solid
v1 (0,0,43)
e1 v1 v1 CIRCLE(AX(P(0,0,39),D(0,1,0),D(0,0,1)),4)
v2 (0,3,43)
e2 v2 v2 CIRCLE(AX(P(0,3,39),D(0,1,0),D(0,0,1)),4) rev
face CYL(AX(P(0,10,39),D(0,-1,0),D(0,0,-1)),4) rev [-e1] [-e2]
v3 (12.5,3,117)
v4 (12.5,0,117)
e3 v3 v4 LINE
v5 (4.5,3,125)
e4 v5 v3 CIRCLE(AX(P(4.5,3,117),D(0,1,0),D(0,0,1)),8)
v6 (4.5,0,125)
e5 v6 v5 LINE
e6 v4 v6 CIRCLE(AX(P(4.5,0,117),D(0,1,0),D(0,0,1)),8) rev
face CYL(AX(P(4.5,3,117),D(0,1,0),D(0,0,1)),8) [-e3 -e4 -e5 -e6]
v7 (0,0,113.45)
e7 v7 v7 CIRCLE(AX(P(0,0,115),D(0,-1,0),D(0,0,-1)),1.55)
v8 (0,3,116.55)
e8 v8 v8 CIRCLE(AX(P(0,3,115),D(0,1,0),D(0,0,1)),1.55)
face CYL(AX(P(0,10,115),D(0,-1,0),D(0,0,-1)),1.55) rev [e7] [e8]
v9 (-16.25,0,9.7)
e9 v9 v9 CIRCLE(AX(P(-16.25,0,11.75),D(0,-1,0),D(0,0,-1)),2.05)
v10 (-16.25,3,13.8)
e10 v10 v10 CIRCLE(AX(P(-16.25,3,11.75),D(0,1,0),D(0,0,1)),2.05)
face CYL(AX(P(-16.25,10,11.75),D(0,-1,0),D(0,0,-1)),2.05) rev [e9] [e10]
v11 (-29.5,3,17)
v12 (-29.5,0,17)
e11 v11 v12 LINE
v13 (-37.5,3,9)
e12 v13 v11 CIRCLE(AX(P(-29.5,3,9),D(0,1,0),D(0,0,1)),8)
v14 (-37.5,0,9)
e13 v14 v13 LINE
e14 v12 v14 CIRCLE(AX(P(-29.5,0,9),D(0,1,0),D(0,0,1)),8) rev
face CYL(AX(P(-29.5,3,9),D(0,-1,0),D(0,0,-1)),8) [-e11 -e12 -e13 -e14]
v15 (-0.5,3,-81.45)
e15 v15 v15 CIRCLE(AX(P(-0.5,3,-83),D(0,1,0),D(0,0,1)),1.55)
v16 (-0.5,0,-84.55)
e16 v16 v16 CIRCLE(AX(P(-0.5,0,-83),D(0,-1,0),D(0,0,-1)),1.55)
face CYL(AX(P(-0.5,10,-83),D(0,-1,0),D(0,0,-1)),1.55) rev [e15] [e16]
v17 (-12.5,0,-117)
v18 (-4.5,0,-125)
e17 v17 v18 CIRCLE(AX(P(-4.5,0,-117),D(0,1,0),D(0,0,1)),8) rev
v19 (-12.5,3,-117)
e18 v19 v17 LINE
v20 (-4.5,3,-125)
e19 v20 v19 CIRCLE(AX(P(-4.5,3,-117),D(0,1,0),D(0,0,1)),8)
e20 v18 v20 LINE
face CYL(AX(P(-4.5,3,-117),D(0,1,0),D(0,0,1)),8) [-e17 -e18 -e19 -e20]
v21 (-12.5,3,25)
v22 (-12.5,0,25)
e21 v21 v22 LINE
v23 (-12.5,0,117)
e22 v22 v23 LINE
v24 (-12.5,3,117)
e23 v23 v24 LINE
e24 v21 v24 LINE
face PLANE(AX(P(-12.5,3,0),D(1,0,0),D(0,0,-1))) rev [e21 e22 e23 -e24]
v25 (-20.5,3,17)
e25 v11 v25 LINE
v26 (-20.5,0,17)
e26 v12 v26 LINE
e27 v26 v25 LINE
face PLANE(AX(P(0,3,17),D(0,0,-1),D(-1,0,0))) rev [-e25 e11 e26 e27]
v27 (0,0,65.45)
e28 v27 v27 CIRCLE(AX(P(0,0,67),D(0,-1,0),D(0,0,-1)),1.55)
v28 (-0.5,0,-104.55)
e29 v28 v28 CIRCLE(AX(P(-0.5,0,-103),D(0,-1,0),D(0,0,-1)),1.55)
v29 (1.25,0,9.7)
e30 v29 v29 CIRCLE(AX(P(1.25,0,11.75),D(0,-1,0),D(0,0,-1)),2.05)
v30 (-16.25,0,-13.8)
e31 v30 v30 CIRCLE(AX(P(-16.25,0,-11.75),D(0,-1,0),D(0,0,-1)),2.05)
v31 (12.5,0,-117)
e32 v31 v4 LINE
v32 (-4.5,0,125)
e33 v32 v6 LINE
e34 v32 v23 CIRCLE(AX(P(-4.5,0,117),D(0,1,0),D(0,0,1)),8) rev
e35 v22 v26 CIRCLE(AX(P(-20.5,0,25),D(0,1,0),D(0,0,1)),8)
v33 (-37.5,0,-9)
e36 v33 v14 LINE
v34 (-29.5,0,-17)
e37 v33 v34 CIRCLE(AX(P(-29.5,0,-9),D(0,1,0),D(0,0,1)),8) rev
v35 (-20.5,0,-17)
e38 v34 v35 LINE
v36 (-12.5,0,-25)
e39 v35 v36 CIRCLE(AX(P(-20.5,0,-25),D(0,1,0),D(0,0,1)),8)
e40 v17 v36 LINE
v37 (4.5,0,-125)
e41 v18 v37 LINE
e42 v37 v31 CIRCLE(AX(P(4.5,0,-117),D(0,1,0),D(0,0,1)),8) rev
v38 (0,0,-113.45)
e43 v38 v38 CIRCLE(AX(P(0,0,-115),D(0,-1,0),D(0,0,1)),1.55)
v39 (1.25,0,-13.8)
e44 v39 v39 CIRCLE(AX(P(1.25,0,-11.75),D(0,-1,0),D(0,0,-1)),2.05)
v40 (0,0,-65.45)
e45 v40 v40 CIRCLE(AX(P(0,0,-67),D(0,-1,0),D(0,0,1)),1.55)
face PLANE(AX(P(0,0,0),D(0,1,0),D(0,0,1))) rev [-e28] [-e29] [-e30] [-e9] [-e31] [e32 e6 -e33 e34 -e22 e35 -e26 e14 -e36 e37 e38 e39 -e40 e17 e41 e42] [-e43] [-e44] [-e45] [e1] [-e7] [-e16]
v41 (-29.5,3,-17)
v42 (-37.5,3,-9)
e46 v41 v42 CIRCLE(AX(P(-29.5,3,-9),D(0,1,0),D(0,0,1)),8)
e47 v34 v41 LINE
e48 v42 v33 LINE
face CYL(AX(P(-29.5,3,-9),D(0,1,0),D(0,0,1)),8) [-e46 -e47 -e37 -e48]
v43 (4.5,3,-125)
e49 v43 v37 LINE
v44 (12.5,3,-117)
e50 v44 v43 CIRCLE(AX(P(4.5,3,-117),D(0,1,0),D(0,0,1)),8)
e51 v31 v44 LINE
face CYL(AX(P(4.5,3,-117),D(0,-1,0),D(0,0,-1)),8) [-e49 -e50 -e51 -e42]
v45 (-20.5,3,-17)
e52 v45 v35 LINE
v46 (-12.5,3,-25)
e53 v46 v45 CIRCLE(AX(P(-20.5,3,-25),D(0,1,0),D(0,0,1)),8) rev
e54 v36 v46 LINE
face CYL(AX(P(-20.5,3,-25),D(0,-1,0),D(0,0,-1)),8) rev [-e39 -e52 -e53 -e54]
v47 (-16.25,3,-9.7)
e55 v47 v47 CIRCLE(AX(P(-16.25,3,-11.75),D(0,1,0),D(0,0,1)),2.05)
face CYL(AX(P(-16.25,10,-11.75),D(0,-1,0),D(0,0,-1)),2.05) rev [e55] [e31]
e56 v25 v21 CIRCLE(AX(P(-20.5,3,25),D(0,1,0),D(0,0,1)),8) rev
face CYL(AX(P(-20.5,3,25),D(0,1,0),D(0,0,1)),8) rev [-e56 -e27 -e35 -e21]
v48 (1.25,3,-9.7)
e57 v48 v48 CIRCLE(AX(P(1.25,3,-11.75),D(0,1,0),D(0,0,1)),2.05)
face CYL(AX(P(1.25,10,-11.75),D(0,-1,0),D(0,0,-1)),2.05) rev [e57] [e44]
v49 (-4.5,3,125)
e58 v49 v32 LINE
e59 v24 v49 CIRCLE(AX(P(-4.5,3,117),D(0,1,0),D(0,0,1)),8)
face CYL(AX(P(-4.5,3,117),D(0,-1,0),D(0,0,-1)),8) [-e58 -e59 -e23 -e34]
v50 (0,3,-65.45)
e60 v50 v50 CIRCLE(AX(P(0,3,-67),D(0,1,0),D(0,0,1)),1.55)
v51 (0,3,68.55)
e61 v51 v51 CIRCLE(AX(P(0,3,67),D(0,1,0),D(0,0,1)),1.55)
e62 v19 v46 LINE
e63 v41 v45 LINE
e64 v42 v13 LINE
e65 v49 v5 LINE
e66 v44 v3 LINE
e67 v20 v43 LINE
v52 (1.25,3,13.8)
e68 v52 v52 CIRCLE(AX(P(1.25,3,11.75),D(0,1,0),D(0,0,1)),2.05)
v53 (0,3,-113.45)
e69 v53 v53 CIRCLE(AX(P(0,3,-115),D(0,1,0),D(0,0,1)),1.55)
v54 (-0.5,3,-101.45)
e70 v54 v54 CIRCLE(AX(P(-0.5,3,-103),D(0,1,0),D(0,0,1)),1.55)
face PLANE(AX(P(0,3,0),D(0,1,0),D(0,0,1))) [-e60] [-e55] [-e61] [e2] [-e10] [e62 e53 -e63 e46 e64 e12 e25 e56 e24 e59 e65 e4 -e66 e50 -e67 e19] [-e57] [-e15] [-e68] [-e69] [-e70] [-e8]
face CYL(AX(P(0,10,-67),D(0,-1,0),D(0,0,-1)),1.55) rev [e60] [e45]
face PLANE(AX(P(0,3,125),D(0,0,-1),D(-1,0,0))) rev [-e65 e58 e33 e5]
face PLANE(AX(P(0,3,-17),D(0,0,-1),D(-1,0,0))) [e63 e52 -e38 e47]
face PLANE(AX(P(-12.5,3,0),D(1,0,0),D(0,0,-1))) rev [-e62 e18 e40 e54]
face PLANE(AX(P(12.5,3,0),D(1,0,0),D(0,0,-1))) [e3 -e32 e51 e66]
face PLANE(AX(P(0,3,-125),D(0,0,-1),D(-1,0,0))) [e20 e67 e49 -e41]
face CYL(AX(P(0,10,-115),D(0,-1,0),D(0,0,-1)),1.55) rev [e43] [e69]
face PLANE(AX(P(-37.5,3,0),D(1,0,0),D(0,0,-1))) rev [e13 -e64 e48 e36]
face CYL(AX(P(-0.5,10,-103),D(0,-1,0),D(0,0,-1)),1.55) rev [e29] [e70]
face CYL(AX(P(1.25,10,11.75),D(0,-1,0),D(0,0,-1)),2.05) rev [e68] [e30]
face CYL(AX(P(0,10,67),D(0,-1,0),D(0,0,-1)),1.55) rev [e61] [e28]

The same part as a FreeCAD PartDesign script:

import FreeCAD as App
import Part
import Sketcher
from FreeCAD import Vector
Q = App.Units.Quantity


def edges_at(feature, points):
    """Names of the edges that pass closest to the given points."""
    edges = feature.Shape.Edges
    near = lambda p: min(range(len(edges)), key=lambda i: edges[i].distToShape(Part.Vertex(*p))[0])
    return sorted({f"Edge{near(p) + 1}" for p in points})


def add_polygon(sketch, points):
    """Adds a closed chain of lines whose ends are joined by coincident constraints."""
    first, n = sketch.GeometryCount, len(points)
    for a, b in zip(points, points[1:] + points[:1]):
        sketch.addGeometry(Part.LineSegment(App.Vector(*a, 0), App.Vector(*b, 0)), False)
    for i in range(n):
        sketch.addConstraint(Sketcher.Constraint("Coincident", first + i, 2, first + (i + 1) % n, 1))

doc = App.newDocument("Part")
body = doc.addObject("PartDesign::Body", "Body")

sketch1 = doc.addObject("Sketcher::SketchObject", "Sketch")
body.addObject(sketch1)
sketch1.AttachmentSupport = (doc.XZ_Plane, [""])
sketch1.MapMode = "FlatFace"
add_polygon(sketch1, [(-37.5, -17), (-37.5, 17), (-12.5, 17), (-12.5, 125), (12.5, 125), (12.5, -125), (-12.5, -125), (-12.5, -17)])
sketch1.addConstraint([
    Sketcher.Constraint("Vertical", 0),
    Sketcher.Constraint("Horizontal", 1),
    Sketcher.Constraint("Vertical", 2),
    Sketcher.Constraint("Horizontal", 3),
    Sketcher.Constraint("Vertical", 4),
    Sketcher.Constraint("Horizontal", 5),
    Sketcher.Constraint("Vertical", 6),
    Sketcher.Constraint("Horizontal", 7),
    Sketcher.Constraint("Symmetric", 2, 2, 4, 2, -1, 1),
    Sketcher.Constraint("Symmetric", 1, 2, 6, 2, -1),
    Sketcher.Constraint("Equal", 1, 3),
    Sketcher.Constraint("DistanceX", 1, 1, 1, 2, Q("25 mm")),
    Sketcher.Constraint("DistanceY", 0, 1, 0, 2, Q("34 mm")),
    Sketcher.Constraint("DistanceY", 2, 1, 2, 2, Q("108 mm")),
])
pad1 = doc.addObject("PartDesign::Pad", "Pad")
body.addObject(pad1)
pad1.Profile = sketch1
pad1.Length = 3
pad1.Reversed = True

sketch2 = doc.addObject("Sketcher::SketchObject", "Sketch001")
body.addObject(sketch2)
sketch2.AttachmentSupport = (doc.XZ_Plane, [""])
sketch2.MapMode = "FlatFace"
sketch2.addGeometry([
    Part.Circle(Vector(1.25, 11.75, 0), Vector(0, 0, 1), 2.05),
    Part.Circle(Vector(1.25, -11.75, 0), Vector(0, 0, 1), 2.05),
    Part.Circle(Vector(-16.25, -11.75, 0), Vector(0, 0, 1), 2.05),
    Part.Circle(Vector(-16.25, 11.75, 0), Vector(0, 0, 1), 2.05),
    Part.Circle(Vector(0, 115, 0), Vector(0, 0, 1), 1.55),
    Part.Circle(Vector(0, 67, 0), Vector(0, 0, 1), 1.55),
    Part.Circle(Vector(0, -115, 0), Vector(0, 0, 1), 1.55),
    Part.Circle(Vector(0, -67, 0), Vector(0, 0, 1), 1.55),
], False)
sketch2.addConstraint([
    Sketcher.Constraint("Equal", 0, 1),
    Sketcher.Constraint("Equal", 1, 2),
    Sketcher.Constraint("Equal", 2, 3),
    Sketcher.Constraint("Equal", 4, 5),
    Sketcher.Constraint("Equal", 5, 6),
    Sketcher.Constraint("Equal", 6, 7),
    Sketcher.Constraint("Symmetric", 4, 3, 6, 3, -1, 1),
    Sketcher.Constraint("Symmetric", 5, 3, 7, 3, -1, 1),
    Sketcher.Constraint("Symmetric", 0, 3, 1, 3, -1),
    Sketcher.Constraint("Symmetric", 2, 3, 3, 3, -1),
    Sketcher.Constraint("PointOnObject", 4, 3, -2),
    Sketcher.Constraint("PointOnObject", 5, 3, -2),
    Sketcher.Constraint("Horizontal", 1, 3, 2, 3),
    Sketcher.Constraint("Diameter", 0, Q("4.1 mm")),
    Sketcher.Constraint("Diameter", 4, Q("3.1 mm")),
    Sketcher.Constraint("DistanceY", -1, 1, 4, 3, Q("115 mm")),
    Sketcher.Constraint("DistanceY", -1, 1, 5, 3, Q("67 mm")),
    Sketcher.Constraint("DistanceY", 1, 3, 0, 3, Q("23.5 mm")),
    Sketcher.Constraint("DistanceX", 2, 3, 1, 3, Q("17.5 mm")),
    Sketcher.Constraint("DistanceX", -1, 1, 0, 3, Q("1.25 mm")),
])
pocket1 = doc.addObject("PartDesign::Pocket", "Pocket")
body.addObject(pocket1)
pocket1.Profile = sketch2
pocket1.Length = 10

sketch3 = doc.addObject("Sketcher::SketchObject", "Sketch002")
body.addObject(sketch3)
sketch3.AttachmentSupport = (doc.XZ_Plane, [""])
sketch3.MapMode = "FlatFace"
sketch3.addGeometry([
    Part.Circle(Vector(-0.5, -83, 0), Vector(0, 0, 1), 1.55),
    Part.Circle(Vector(-0.5, -103, 0), Vector(0, 0, 1), 1.55),
], False)
sketch3.addConstraint([
    Sketcher.Constraint("Equal", 0, 1),
    Sketcher.Constraint("Vertical", 0, 3, 1, 3),
    Sketcher.Constraint("Diameter", 0, Q("3.1 mm")),
    Sketcher.Constraint("DistanceY", 0, 3, -1, 1, Q("83 mm")),
    Sketcher.Constraint("DistanceY", 1, 3, -1, 1, Q("103 mm")),
    Sketcher.Constraint("DistanceX", 0, 3, -1, 1, Q("0.5 mm")),
])
pocket2 = doc.addObject("PartDesign::Pocket", "Pocket001")
body.addObject(pocket2)
pocket2.Profile = sketch3
pocket2.Length = 10
doc.recompute()

fillet = doc.addObject("PartDesign::Fillet", "Fillet")
body.addObject(fillet)
fillet.Base = (pocket2, edges_at(pocket2, [
    (-37.5, 1.5, -17),
    (-12.5, 1.5, -17),
    (-12.5, 1.5, -125),
    (12.5, 1.5, -125),
    (12.5, 1.5, 125),
    (-12.5, 1.5, 125),
    (-12.5, 1.5, 17),
    (-37.5, 1.5, 17),
]))
fillet.Radius = 8

sketch4 = doc.addObject("Sketcher::SketchObject", "Sketch003")
body.addObject(sketch4)
sketch4.AttachmentSupport = (doc.XZ_Plane, [""])
sketch4.MapMode = "FlatFace"
sketch4.addGeometry(Part.Circle(Vector(0, 39, 0), Vector(0, 0, 1), 4), False)
sketch4.addConstraint([
    Sketcher.Constraint("PointOnObject", 0, 3, -2),
    Sketcher.Constraint("Diameter", 0, Q("8 mm")),
    Sketcher.Constraint("DistanceY", -1, 1, 0, 3, Q("39 mm")),
])
pocket3 = doc.addObject("PartDesign::Pocket", "Pocket002")
body.addObject(pocket3)
pocket3.Profile = sketch4
pocket3.Length = 10

doc.recompute()
